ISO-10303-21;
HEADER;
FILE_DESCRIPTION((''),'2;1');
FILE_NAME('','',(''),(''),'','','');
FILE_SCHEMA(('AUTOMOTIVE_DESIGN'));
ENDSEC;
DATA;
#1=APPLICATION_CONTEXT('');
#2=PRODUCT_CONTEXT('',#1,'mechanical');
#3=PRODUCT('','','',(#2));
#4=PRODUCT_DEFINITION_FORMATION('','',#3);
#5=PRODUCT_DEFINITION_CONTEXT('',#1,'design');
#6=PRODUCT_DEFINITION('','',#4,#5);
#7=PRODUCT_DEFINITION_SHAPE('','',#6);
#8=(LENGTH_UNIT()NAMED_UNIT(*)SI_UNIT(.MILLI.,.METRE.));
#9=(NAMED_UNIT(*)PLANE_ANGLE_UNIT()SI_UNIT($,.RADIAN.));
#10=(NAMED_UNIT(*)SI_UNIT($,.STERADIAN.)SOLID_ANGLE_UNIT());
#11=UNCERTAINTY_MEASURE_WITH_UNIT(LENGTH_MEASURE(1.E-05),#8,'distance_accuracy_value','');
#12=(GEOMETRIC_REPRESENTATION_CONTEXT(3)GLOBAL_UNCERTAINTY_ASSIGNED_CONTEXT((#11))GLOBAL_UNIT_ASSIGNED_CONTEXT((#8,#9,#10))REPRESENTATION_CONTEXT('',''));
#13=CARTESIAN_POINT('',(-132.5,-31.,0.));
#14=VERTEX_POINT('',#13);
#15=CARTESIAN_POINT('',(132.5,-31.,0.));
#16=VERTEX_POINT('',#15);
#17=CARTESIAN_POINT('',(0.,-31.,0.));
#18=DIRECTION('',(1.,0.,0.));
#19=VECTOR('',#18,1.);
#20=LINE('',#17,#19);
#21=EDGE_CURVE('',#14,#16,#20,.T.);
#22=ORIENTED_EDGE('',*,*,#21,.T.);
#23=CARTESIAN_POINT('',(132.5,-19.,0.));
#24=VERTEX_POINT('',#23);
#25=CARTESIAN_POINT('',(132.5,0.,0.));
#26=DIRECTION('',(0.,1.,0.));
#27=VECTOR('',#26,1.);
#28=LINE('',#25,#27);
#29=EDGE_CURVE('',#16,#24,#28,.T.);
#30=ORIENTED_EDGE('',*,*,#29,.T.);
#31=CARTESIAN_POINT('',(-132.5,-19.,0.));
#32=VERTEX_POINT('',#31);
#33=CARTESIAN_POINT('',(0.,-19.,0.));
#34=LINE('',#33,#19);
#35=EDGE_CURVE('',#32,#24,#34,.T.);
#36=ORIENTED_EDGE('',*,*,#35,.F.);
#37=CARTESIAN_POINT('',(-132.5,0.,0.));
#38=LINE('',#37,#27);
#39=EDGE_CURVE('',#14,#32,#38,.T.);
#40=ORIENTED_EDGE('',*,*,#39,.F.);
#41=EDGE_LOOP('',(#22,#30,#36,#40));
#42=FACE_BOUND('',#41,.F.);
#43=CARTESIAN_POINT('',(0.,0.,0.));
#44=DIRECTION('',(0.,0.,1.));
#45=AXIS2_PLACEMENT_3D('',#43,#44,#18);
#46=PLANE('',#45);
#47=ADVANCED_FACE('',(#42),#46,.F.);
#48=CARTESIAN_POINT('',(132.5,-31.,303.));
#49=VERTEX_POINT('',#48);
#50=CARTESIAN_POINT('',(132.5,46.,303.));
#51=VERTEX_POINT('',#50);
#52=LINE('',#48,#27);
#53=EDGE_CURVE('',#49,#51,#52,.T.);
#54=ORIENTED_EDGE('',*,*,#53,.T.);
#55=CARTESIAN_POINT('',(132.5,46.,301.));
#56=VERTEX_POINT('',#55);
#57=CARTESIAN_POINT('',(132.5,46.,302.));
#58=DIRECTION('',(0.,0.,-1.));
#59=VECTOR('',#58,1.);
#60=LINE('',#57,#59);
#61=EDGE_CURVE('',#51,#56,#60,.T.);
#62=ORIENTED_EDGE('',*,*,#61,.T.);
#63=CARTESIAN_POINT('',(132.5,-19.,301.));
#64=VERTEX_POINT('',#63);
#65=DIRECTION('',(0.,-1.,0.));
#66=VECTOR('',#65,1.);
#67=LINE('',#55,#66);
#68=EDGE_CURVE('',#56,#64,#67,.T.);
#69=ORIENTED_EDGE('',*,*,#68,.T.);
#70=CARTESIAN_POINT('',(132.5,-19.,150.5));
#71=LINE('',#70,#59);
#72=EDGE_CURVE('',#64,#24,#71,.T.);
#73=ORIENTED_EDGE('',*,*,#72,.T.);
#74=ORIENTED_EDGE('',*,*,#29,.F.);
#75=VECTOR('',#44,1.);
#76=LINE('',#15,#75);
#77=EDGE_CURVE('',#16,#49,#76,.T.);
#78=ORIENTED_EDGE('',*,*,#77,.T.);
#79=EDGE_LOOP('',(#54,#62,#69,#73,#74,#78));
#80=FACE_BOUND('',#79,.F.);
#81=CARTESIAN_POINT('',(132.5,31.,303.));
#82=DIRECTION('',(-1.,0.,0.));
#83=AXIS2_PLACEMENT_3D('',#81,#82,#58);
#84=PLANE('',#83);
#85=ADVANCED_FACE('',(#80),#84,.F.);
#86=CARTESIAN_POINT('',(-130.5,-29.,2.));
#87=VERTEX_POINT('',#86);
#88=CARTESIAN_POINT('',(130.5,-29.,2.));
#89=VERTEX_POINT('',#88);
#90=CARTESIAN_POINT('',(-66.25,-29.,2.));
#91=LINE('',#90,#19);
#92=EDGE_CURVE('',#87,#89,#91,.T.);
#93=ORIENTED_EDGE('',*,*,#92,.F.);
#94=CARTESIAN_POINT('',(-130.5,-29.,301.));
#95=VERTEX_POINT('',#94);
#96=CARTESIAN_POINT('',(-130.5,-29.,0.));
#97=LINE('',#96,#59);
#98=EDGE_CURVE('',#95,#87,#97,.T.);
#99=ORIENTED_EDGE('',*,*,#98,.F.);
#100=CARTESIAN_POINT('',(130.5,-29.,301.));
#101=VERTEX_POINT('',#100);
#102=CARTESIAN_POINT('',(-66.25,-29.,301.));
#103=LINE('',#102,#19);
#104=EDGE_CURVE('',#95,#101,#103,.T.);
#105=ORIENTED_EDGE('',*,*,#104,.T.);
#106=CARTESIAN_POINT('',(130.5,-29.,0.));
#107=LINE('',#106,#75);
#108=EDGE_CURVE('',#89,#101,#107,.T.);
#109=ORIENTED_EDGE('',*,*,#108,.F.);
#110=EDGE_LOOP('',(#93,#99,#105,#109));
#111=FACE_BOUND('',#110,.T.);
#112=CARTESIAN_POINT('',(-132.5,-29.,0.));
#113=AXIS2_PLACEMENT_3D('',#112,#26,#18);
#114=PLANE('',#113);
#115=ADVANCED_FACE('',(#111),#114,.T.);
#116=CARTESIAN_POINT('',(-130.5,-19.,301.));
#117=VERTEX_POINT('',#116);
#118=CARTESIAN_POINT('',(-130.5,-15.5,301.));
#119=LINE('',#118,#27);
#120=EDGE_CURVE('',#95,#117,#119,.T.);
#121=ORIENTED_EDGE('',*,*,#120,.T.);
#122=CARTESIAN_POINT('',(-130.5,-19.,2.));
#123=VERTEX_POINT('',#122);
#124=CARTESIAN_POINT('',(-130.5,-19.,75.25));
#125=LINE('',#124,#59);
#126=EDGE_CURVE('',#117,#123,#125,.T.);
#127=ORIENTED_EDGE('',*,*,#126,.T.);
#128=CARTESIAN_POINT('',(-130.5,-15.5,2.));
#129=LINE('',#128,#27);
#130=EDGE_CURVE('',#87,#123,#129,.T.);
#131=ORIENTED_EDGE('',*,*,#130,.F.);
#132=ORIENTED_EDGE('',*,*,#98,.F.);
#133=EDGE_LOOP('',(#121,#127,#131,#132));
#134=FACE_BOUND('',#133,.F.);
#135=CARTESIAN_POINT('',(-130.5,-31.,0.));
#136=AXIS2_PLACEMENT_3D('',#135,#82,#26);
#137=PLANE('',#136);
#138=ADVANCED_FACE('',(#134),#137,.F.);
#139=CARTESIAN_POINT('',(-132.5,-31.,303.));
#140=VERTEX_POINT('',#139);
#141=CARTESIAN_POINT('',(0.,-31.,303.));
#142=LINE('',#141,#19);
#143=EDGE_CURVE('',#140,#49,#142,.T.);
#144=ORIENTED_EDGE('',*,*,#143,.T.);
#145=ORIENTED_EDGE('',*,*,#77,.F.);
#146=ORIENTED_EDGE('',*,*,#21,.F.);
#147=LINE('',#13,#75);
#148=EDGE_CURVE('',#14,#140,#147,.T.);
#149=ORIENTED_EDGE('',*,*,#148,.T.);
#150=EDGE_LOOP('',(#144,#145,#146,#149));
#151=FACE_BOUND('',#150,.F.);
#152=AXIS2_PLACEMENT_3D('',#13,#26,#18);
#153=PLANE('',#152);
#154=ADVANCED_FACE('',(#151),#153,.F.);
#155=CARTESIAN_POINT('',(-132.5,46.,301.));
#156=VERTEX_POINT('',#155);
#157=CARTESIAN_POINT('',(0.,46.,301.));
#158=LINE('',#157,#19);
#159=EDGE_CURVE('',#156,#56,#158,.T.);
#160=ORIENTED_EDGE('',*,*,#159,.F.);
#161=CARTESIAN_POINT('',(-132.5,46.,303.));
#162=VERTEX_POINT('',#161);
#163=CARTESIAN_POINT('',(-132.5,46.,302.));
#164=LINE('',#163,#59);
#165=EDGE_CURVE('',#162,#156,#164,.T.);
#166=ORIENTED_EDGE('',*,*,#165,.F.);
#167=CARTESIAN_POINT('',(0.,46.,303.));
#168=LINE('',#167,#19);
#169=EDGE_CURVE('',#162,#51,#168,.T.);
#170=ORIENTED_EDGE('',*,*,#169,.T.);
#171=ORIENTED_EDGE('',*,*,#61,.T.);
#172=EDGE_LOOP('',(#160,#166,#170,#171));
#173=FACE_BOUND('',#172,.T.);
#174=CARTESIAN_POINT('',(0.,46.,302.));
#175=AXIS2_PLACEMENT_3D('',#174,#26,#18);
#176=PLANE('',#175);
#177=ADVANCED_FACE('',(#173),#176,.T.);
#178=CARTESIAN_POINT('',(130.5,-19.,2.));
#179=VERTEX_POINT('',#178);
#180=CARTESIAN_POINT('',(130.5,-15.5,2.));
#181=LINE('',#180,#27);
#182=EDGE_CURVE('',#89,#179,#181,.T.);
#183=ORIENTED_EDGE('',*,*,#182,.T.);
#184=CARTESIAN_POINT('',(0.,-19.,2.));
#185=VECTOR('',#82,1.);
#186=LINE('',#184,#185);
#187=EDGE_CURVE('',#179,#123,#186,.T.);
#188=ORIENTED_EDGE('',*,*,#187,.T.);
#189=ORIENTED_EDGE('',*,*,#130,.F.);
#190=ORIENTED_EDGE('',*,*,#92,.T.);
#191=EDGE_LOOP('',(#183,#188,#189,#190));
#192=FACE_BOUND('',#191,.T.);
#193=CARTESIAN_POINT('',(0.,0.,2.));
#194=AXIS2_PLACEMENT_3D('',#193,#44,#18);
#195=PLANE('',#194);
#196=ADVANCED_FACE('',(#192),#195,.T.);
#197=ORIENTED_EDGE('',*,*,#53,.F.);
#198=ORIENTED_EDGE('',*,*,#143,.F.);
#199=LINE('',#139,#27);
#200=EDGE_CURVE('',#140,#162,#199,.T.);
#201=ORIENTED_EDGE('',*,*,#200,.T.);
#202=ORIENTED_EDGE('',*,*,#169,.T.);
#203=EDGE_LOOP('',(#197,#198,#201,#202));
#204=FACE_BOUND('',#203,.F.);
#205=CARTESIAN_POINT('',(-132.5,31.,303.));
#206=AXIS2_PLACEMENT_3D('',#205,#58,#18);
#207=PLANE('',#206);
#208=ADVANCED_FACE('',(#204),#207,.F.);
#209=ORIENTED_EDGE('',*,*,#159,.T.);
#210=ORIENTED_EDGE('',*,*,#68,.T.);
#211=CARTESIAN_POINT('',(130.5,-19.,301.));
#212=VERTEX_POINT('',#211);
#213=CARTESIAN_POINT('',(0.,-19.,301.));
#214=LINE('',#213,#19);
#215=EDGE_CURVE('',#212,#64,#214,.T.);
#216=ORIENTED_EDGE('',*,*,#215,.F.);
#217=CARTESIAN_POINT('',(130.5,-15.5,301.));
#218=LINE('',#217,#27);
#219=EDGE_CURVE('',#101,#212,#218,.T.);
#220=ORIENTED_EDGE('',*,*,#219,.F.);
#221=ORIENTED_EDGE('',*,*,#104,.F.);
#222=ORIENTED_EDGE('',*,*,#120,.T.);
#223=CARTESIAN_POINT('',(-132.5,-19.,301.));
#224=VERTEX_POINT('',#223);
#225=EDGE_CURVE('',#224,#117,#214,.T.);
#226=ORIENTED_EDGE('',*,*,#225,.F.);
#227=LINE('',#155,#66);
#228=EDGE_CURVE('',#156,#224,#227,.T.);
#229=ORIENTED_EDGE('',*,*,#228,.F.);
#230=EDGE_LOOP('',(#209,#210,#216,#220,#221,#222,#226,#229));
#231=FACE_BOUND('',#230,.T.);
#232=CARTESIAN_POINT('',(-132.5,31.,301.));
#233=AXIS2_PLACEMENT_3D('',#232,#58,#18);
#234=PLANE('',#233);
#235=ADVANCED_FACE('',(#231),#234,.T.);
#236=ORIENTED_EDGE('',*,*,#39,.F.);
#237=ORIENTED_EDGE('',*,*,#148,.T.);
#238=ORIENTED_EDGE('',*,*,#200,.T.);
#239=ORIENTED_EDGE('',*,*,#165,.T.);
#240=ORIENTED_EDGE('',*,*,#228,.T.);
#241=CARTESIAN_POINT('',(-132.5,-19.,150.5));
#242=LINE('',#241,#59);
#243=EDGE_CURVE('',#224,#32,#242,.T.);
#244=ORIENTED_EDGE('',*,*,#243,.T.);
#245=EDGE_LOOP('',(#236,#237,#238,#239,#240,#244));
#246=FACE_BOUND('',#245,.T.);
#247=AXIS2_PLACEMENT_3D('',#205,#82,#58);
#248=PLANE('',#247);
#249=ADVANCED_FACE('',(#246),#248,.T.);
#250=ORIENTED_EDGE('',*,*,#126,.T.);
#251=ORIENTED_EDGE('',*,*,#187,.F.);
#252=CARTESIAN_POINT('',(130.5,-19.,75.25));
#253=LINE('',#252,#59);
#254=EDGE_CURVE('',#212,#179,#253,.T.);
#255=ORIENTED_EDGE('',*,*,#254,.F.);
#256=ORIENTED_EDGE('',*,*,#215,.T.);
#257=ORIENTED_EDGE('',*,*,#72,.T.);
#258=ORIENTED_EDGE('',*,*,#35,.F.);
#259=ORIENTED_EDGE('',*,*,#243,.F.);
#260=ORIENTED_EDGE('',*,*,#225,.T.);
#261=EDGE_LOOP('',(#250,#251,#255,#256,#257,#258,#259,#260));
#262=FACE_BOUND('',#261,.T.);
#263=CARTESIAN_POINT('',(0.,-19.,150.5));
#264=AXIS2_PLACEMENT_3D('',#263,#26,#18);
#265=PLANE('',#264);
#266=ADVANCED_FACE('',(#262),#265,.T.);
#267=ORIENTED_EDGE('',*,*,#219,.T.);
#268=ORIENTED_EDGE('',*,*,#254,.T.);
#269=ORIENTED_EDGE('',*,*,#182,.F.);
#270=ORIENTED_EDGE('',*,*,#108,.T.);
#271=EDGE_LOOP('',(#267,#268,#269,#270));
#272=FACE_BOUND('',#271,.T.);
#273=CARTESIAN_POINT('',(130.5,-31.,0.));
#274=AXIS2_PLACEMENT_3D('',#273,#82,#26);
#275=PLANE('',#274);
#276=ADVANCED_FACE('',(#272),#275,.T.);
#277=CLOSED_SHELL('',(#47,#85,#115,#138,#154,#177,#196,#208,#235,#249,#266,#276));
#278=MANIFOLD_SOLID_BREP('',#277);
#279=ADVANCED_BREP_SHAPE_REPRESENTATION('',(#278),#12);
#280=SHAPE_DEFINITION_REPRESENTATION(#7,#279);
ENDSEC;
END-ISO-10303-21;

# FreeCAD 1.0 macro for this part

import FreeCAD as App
import Part
import Sketcher


def faces_at(feature, points):
    """Names of the faces that lie closest to the given points."""
    faces = feature.Shape.Faces
    near = lambda p: min(range(len(faces)), key=lambda i: faces[i].distToShape(Part.Vertex(*p))[0])
    return sorted({f"Face{near(p) + 1}" for p in points})

doc = App.newDocument("Part")
body = doc.addObject("PartDesign::Body", "Body")

# Sketch on XY plane
sketch1 = body.newObject("Sketcher::SketchObject", "Sketch")
sketch1.AttachmentSupport = (doc.getObject("XY_Plane"), [""])
sketch1.MapMode = "FlatFace"
sketch1.addGeometry(Part.LineSegment(App.Vector(-132, 31, 0), App.Vector(-132, -31, 0)), False)
sketch1.addGeometry(Part.LineSegment(App.Vector(-132, -31, 0), App.Vector(132, -31, 0)), False)
sketch1.addGeometry(Part.LineSegment(App.Vector(132, -31, 0), App.Vector(132, 31, 0)), False)
sketch1.addGeometry(Part.LineSegment(App.Vector(132, 31, 0), App.Vector(-132, 31, 0)), False)
sketch1.addConstraint(Sketcher.Constraint("Coincident", 0, 2, 1, 1))
sketch1.addConstraint(Sketcher.Constraint("Coincident", 1, 2, 2, 1))
sketch1.addConstraint(Sketcher.Constraint("Coincident", 2, 2, 3, 1))
sketch1.addConstraint(Sketcher.Constraint("Coincident", 3, 2, 0, 1))
sketch1.addConstraint(Sketcher.Constraint("Vertical", 0))
sketch1.addConstraint(Sketcher.Constraint("Horizontal", 1))
sketch1.addConstraint(Sketcher.Constraint("Vertical", 2))
sketch1.addConstraint(Sketcher.Constraint("Horizontal", 3))
sketch1.addConstraint(Sketcher.Constraint("Symmetric", 0, 2, 2, 2, -1, 1))
sketch1.addConstraint(Sketcher.Constraint("DistanceX", 1, 1, 1, 2, 265.0))
sketch1.addConstraint(Sketcher.Constraint("DistanceY", 0, 2, 0, 1, 62.0))
pad1 = body.newObject("PartDesign::Pad", "Pad")
pad1.Profile = sketch1
pad1.Length = 303
doc.recompute()

thickness = body.newObject("PartDesign::Thickness", "Thickness")
thickness.Base = (pad1, faces_at(pad1, [(0, 31, 151.5)]))
thickness.Value = 2
thickness.Reversed = True
thickness.Join = "Intersection"

# Sketch on XZ plane
sketch2 = body.newObject("Sketcher::SketchObject", "Sketch001")
sketch2.AttachmentSupport = (doc.getObject("XZ_Plane"), [""])
sketch2.MapMode = "FlatFace"
sketch2.AttachmentOffset = App.Placement(App.Vector(0, 0, -31), App.Rotation())
sketch2.addGeometry(Part.LineSegment(App.Vector(-132, 0, 0), App.Vector(-132, 301, 0)), False)
sketch2.addGeometry(Part.LineSegment(App.Vector(-132, 301, 0), App.Vector(132, 301, 0)), False)
sketch2.addGeometry(Part.LineSegment(App.Vector(132, 301, 0), App.Vector(132, 0, 0)), False)
sketch2.addGeometry(Part.LineSegment(App.Vector(132, 0, 0), App.Vector(-132, 0, 0)), False)
sketch2.addConstraint(Sketcher.Constraint("Coincident", 0, 2, 1, 1))
sketch2.addConstraint(Sketcher.Constraint("Coincident", 1, 2, 2, 1))
sketch2.addConstraint(Sketcher.Constraint("Coincident", 2, 2, 3, 1))
sketch2.addConstraint(Sketcher.Constraint("Coincident", 3, 2, 0, 1))
sketch2.addConstraint(Sketcher.Constraint("Vertical", 0))
sketch2.addConstraint(Sketcher.Constraint("Horizontal", 1))
sketch2.addConstraint(Sketcher.Constraint("Vertical", 2))
sketch2.addConstraint(Sketcher.Constraint("Horizontal", 3))
sketch2.addConstraint(Sketcher.Constraint("Symmetric", 2, 2, 3, 2, -1, 1))
sketch2.addConstraint(Sketcher.Constraint("DistanceX", 1, 1, 1, 2, 265.0))
sketch2.addConstraint(Sketcher.Constraint("DistanceY", 0, 1, 0, 2, 301.0))
pocket1 = body.newObject("PartDesign::Pocket", "Pocket")
pocket1.Profile = sketch2
pocket1.Length = 50
pocket1.Reversed = True

# Sketch on XZ plane
sketch3 = body.newObject("Sketcher::SketchObject", "Sketch002")
sketch3.AttachmentSupport = (doc.getObject("XZ_Plane"), [""])
sketch3.MapMode = "FlatFace"
sketch3.AttachmentOffset = App.Placement(App.Vector(0, 0, -31), App.Rotation())
sketch3.addGeometry(Part.LineSegment(App.Vector(-132.5, 301, 0), App.Vector(-132.5, 303, 0)), False)
sketch3.addGeometry(Part.LineSegment(App.Vector(-132.5, 303, 0), App.Vector(132.5, 303, 0)), False)
sketch3.addGeometry(Part.LineSegment(App.Vector(132.5, 303, 0), App.Vector(132.5, 301, 0)), False)
sketch3.addGeometry(Part.LineSegment(App.Vector(132.5, 301, 0), App.Vector(-132.5, 301, 0)), False)
sketch3.addConstraint(Sketcher.Constraint("Coincident", 0, 2, 1, 1))
sketch3.addConstraint(Sketcher.Constraint("Coincident", 1, 2, 2, 1))
sketch3.addConstraint(Sketcher.Constraint("Coincident", 2, 2, 3, 1))
sketch3.addConstraint(Sketcher.Constraint("Coincident", 3, 2, 0, 1))
sketch3.addConstraint(Sketcher.Constraint("Vertical", 0))
sketch3.addConstraint(Sketcher.Constraint("Horizontal", 1))
sketch3.addConstraint(Sketcher.Constraint("Vertical", 2))
sketch3.addConstraint(Sketcher.Constraint("Horizontal", 3))
sketch3.addConstraint(Sketcher.Constraint("DistanceX", 1, 1, 1, 2, 265.0))
sketch3.addConstraint(Sketcher.Constraint("DistanceY", 0, 1, 0, 2, 2.0))
sketch3.addConstraint(Sketcher.Constraint("DistanceY", -1, 1, 0, 2, 303.0))
sketch3.addConstraint(Sketcher.Constraint("DistanceX", 0, 2, -1, 1, 132.5))
pad2 = body.newObject("PartDesign::Pad", "Pad001")
pad2.Profile = sketch3
pad2.Length = 15
pad2.Reversed = True

doc.recompute()
